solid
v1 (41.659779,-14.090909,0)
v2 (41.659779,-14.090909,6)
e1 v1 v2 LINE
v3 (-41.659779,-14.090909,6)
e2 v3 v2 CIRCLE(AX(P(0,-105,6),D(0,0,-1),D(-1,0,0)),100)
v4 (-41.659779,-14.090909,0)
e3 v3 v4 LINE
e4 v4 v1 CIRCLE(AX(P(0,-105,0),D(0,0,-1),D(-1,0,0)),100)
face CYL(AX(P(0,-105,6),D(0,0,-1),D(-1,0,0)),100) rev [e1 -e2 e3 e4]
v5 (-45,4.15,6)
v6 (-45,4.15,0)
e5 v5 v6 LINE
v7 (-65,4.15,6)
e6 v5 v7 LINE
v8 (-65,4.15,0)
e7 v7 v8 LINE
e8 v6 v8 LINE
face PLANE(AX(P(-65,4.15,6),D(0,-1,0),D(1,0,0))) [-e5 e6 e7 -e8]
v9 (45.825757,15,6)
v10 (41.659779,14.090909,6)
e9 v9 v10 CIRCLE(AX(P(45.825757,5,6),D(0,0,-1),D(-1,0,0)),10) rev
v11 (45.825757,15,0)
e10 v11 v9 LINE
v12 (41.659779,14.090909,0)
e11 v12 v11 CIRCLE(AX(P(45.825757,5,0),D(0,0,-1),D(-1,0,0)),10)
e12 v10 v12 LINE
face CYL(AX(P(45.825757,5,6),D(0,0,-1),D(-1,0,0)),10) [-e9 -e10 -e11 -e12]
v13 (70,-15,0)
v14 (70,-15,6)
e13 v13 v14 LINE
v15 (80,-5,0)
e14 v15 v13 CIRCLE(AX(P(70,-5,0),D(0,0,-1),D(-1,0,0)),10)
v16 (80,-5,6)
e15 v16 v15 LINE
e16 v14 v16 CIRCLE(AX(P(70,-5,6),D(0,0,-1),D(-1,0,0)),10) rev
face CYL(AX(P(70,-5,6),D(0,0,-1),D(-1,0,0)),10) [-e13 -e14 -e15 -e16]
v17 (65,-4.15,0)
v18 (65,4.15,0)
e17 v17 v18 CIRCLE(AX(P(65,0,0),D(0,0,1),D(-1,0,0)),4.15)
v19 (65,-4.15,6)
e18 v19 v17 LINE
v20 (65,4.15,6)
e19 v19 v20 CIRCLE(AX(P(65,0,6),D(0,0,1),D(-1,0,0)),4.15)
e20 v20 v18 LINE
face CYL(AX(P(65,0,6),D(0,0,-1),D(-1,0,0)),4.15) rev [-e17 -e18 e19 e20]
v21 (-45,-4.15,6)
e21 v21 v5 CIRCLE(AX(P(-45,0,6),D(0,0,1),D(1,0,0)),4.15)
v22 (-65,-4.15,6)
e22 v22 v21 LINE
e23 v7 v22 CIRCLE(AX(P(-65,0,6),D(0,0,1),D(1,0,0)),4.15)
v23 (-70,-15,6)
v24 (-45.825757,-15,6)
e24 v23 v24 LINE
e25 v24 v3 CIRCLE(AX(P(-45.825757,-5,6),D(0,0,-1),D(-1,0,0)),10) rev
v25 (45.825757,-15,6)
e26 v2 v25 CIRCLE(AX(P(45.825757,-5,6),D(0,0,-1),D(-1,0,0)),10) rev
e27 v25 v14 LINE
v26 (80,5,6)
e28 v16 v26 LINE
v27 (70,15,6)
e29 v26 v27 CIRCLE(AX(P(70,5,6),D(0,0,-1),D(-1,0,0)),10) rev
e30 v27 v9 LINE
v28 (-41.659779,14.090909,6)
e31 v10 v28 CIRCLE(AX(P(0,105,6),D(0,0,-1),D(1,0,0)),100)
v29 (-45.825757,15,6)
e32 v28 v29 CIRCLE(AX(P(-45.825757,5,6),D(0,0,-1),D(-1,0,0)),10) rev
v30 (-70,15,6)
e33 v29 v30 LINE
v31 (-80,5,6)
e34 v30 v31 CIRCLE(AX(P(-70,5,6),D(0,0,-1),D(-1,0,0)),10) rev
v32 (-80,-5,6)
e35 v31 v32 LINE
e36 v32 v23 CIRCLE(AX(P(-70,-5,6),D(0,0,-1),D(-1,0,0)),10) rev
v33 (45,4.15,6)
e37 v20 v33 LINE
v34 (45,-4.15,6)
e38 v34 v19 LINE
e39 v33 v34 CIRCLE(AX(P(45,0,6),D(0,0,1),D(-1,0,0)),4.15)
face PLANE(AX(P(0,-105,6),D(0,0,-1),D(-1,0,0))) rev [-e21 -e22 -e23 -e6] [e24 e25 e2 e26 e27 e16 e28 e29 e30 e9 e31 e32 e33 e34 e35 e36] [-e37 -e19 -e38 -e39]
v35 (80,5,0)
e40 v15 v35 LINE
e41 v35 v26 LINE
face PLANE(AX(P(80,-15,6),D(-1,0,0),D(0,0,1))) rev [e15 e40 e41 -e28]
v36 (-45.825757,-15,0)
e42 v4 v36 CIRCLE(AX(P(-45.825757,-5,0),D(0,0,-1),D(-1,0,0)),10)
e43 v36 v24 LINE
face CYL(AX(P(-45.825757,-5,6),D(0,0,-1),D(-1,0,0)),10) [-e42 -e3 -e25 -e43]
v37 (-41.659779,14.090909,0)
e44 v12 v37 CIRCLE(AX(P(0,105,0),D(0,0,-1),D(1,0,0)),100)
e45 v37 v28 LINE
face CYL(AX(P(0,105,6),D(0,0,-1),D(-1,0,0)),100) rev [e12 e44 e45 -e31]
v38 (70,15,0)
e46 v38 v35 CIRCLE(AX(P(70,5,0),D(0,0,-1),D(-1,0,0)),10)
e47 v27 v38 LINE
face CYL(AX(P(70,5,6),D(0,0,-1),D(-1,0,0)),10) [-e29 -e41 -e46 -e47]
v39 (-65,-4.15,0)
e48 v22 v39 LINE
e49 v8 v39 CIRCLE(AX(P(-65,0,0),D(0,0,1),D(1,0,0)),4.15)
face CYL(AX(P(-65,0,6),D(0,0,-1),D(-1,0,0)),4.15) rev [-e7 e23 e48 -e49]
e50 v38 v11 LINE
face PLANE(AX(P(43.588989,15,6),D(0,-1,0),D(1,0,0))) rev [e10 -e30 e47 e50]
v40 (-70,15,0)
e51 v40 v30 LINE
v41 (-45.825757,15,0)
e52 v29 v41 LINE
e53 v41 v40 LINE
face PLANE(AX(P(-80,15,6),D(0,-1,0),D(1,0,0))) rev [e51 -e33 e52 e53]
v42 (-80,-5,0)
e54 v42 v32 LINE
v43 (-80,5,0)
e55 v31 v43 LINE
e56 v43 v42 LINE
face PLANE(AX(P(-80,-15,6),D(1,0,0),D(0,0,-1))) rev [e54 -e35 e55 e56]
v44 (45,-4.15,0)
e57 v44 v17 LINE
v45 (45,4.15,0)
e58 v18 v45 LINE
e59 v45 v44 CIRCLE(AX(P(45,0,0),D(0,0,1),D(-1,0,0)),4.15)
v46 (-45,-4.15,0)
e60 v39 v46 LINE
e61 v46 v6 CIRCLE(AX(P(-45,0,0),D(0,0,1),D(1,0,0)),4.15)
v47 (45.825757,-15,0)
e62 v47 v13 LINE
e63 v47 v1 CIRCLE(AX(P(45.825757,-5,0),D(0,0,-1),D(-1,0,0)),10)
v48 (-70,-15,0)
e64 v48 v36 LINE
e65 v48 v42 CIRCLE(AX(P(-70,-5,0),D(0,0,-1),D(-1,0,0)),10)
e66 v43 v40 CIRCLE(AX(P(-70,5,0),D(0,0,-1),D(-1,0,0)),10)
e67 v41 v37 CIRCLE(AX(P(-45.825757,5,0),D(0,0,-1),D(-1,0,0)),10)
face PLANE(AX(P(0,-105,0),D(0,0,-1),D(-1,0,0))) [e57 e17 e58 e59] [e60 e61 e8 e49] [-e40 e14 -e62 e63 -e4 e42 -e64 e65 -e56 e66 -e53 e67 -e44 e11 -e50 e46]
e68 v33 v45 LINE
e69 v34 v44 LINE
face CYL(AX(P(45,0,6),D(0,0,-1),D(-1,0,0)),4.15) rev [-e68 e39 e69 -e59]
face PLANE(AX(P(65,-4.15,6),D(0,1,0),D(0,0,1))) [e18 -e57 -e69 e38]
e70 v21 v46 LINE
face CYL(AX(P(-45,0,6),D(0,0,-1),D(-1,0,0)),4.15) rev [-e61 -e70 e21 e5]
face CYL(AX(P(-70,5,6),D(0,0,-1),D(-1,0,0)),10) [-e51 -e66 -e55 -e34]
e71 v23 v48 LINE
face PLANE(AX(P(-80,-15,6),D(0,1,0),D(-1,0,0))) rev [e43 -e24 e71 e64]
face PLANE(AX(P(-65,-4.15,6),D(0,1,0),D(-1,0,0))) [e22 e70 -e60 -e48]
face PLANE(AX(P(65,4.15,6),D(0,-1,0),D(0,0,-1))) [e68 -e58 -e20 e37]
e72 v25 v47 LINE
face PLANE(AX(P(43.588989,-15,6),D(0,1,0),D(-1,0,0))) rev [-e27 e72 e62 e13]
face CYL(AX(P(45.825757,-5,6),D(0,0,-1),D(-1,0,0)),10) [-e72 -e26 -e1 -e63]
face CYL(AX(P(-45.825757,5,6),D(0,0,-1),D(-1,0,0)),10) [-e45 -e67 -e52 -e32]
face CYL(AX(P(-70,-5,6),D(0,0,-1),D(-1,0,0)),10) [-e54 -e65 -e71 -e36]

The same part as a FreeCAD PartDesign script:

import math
import FreeCAD as App
import Part
import Sketcher

V = App.Vector


def edges_at(feature, points):
    """Names of the edges that pass closest to the given points."""
    edges = feature.Shape.Edges
    near = lambda p: min(range(len(edges)), key=lambda i: edges[i].distToShape(Part.Vertex(*p))[0])
    return sorted({f"Edge{near(p) + 1}" for p in points})

doc = App.newDocument("Part")
params = doc.addObject("Spreadsheet::Sheet", "Params")
for row, (alias, value) in enumerate([
    ("sketch1_radius", "100 mm"),
    ("sketch1_width", "20 mm"),
    ("sketch1_height", "30 mm"),
    ("sketch1_radius2", "4.15 mm"),
    ("pad1_length", "6 mm"),
    ("fillet_radius", "10 mm"),
], start=1):
    params.set(f"A{row}", alias)
    params.set(f"B{row}", "=" + value)
    params.setAlias(f"B{row}", alias)

body = doc.addObject("PartDesign::Body", "Body")

sketch1 = doc.addObject("Sketcher::SketchObject", "Sketch")
body.addObject(sketch1)
sketch1.AttachmentSupport = (doc.XY_Plane, [""])
sketch1.MapMode = "FlatFace"
sketch1.addGeometry([
    Part.LineSegment(V(-80, -15, 0), V(-43.6, -15, 0)),
    Part.ArcOfCircle(Part.Circle(V(0, -105, 0), V(0, 0, 1), 100), math.radians(64), math.radians(116)),
    Part.LineSegment(V(43.6, -15, 0), V(80, -15, 0)),
    Part.LineSegment(V(80, -15, 0), V(80, 15, 0)),
    Part.LineSegment(V(80, 15, 0), V(43.6, 15, 0)),
    Part.ArcOfCircle(Part.Circle(V(0, 105, 0), V(0, 0, 1), 100), math.radians(-116), math.radians(-64)),
    Part.LineSegment(V(-43.6, 15, 0), V(-80, 15, 0)),
    Part.LineSegment(V(-80, 15, 0), V(-80, -15, 0)),
    Part.ArcOfCircle(Part.Circle(V(-65, 0, 0), V(0, 0, 1), 4.2), math.radians(90), math.radians(270)),
    Part.LineSegment(V(-65, 4.2, 0), V(-45, 4.2, 0)),
    Part.ArcOfCircle(Part.Circle(V(-45, 0, 0), V(0, 0, 1), 4.2), math.radians(-90), math.radians(90)),
    Part.LineSegment(V(-45, -4.2, 0), V(-65, -4.2, 0)),
    Part.LineSegment(V(45, 4.2, 0), V(65, 4.2, 0)),
    Part.ArcOfCircle(Part.Circle(V(65, 0, 0), V(0, 0, 1), 4.2), math.radians(-90), math.radians(90)),
    Part.LineSegment(V(65, -4.2, 0), V(45, -4.2, 0)),
    Part.ArcOfCircle(Part.Circle(V(45, 0, 0), V(0, 0, 1), 4.2), math.radians(90), math.radians(270)),
], False)
sketch1.addConstraint([
    Sketcher.Constraint("Coincident", 0, 2, 1, 2),
    Sketcher.Constraint("Coincident", 1, 1, 2, 1),
    Sketcher.Constraint("Coincident", 2, 2, 3, 1),
    Sketcher.Constraint("Coincident", 3, 2, 4, 1),
    Sketcher.Constraint("Coincident", 4, 2, 5, 2),
    Sketcher.Constraint("Coincident", 5, 1, 6, 1),
    Sketcher.Constraint("Coincident", 6, 2, 7, 1),
    Sketcher.Constraint("Coincident", 7, 2, 0, 1),
    Sketcher.Constraint("Tangent", 8, 1, 9, 1),
    Sketcher.Constraint("Tangent", 9, 2, 10, 2),
    Sketcher.Constraint("Tangent", 10, 1, 11, 1),
    Sketcher.Constraint("Tangent", 11, 2, 8, 2),
    Sketcher.Constraint("Tangent", 12, 2, 13, 2),
    Sketcher.Constraint("Tangent", 13, 1, 14, 1),
    Sketcher.Constraint("Tangent", 14, 2, 15, 2),
    Sketcher.Constraint("Tangent", 15, 1, 12, 1),
    Sketcher.Constraint("Horizontal", 0),
    Sketcher.Constraint("Horizontal", 2),
    Sketcher.Constraint("Vertical", 3),
    Sketcher.Constraint("Horizontal", 4),
    Sketcher.Constraint("Horizontal", 6),
    Sketcher.Constraint("Vertical", 7),
    Sketcher.Constraint("Horizontal", 9),
    Sketcher.Constraint("Horizontal", 11),
    Sketcher.Constraint("Horizontal", 12),
    Sketcher.Constraint("Horizontal", 14),
    Sketcher.Constraint("Equal", 1, 5),
    Sketcher.Constraint("Equal", 10, 13),
    Sketcher.Constraint("Symmetric", 1, 3, 5, 3, -1, 1),
    Sketcher.Constraint("Symmetric", 8, 3, 13, 3, -1, 1),
    Sketcher.Constraint("Symmetric", 2, 2, 6, 2, -1, 1),
    Sketcher.Constraint("Symmetric", 10, 3, 15, 3, -2),
    Sketcher.Constraint("Symmetric", 0, 2, 1, 1, -2),
    Sketcher.Constraint("Horizontal", 4, 2, 5, 1),
    Sketcher.Constraint("Radius", 1, 100.0),
    Sketcher.Constraint("DistanceX", 9, 1, 9, 2, 20.0),
    Sketcher.Constraint("DistanceY", 3, 1, 3, 2, 30.0),
    Sketcher.Constraint("Radius", 8, 4.15),
    Sketcher.Constraint("DistanceY", 1, 3, -1, 1, 105.0),
    Sketcher.Constraint("DistanceX", 8, 3, -1, 1, 65.0),
    Sketcher.Constraint("DistanceX", -1, 1, 2, 2, 80.0),
])
sketch1.setExpression("Constraints[34]", "Params.sketch1_radius")
sketch1.setExpression("Constraints[35]", "Params.sketch1_width")
sketch1.setExpression("Constraints[36]", "Params.sketch1_height")
sketch1.setExpression("Constraints[37]", "Params.sketch1_radius2")
pad1 = doc.addObject("PartDesign::Pad", "Pad")
body.addObject(pad1)
pad1.Profile = sketch1
pad1.setExpression("Length", "Params.pad1_length")
doc.recompute()

fillet = doc.addObject("PartDesign::Fillet", "Fillet")
body.addObject(fillet)
fillet.Base = (pad1, edges_at(pad1, [
    (80, 15, 3),
    (80, -15, 3),
    (43.589, -15, 3),
    (-43.589, -15, 3),
    (-80, -15, 3),
    (-80, 15, 3),
    (-43.589, 15, 3),
    (43.589, 15, 3),
]))
fillet.setExpression("Radius", "Params.fillet_radius")

doc.recompute()
